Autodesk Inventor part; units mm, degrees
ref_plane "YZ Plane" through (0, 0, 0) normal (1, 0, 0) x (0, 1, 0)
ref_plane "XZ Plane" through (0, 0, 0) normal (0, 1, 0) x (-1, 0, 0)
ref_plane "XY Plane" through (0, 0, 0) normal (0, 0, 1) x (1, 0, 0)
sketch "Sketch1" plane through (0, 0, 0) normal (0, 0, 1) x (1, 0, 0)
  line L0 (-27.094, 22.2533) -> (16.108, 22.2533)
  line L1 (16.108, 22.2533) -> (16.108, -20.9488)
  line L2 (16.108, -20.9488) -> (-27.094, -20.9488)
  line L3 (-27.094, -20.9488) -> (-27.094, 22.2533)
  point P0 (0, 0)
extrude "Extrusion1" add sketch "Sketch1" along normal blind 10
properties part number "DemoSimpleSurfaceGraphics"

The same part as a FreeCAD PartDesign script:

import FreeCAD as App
import Part
import Sketcher
from FreeCAD import Vector
Q = App.Units.Quantity

doc = App.newDocument("Part")
body = doc.addObject("PartDesign::Body", "Body")

# Sketch on XY plane
sketch1 = body.newObject("Sketcher::SketchObject", "Sketch")
sketch1.AttachmentSupport = (doc.getObject("XY_Plane"), [""])
sketch1.MapMode = "FlatFace"
sketch1.addGeometry([
    Part.LineSegment(Vector(16, 22, 0), Vector(-27, 22, 0)),
    Part.LineSegment(Vector(-27, 22, 0), Vector(-27, -21, 0)),
    Part.LineSegment(Vector(-27, -21, 0), Vector(16, -21, 0)),
    Part.LineSegment(Vector(16, -21, 0), Vector(16, 22, 0)),
], False)
sketch1.addConstraint([
    Sketcher.Constraint("Coincident", 0, 2, 1, 1),
    Sketcher.Constraint("Coincident", 1, 2, 2, 1),
    Sketcher.Constraint("Coincident", 2, 2, 3, 1),
    Sketcher.Constraint("Coincident", 3, 2, 0, 1),
    Sketcher.Constraint("Horizontal", 0),
    Sketcher.Constraint("Vertical", 1),
    Sketcher.Constraint("Horizontal", 2),
    Sketcher.Constraint("Vertical", 3),
    Sketcher.Constraint("Equal", 2, 1),
    Sketcher.Constraint("DistanceX", 0, 2, 0, 1, Q("43.202 mm")),
    Sketcher.Constraint("DistanceX", 0, 2, -1, 1, Q("27.094 mm")),
    Sketcher.Constraint("DistanceY", -1, 1, 0, 2, Q("22.2533 mm")),
])
pad1 = body.newObject("PartDesign::Pad", "Pad")
pad1.Profile = sketch1
pad1.Length = 10

doc.recompute()
